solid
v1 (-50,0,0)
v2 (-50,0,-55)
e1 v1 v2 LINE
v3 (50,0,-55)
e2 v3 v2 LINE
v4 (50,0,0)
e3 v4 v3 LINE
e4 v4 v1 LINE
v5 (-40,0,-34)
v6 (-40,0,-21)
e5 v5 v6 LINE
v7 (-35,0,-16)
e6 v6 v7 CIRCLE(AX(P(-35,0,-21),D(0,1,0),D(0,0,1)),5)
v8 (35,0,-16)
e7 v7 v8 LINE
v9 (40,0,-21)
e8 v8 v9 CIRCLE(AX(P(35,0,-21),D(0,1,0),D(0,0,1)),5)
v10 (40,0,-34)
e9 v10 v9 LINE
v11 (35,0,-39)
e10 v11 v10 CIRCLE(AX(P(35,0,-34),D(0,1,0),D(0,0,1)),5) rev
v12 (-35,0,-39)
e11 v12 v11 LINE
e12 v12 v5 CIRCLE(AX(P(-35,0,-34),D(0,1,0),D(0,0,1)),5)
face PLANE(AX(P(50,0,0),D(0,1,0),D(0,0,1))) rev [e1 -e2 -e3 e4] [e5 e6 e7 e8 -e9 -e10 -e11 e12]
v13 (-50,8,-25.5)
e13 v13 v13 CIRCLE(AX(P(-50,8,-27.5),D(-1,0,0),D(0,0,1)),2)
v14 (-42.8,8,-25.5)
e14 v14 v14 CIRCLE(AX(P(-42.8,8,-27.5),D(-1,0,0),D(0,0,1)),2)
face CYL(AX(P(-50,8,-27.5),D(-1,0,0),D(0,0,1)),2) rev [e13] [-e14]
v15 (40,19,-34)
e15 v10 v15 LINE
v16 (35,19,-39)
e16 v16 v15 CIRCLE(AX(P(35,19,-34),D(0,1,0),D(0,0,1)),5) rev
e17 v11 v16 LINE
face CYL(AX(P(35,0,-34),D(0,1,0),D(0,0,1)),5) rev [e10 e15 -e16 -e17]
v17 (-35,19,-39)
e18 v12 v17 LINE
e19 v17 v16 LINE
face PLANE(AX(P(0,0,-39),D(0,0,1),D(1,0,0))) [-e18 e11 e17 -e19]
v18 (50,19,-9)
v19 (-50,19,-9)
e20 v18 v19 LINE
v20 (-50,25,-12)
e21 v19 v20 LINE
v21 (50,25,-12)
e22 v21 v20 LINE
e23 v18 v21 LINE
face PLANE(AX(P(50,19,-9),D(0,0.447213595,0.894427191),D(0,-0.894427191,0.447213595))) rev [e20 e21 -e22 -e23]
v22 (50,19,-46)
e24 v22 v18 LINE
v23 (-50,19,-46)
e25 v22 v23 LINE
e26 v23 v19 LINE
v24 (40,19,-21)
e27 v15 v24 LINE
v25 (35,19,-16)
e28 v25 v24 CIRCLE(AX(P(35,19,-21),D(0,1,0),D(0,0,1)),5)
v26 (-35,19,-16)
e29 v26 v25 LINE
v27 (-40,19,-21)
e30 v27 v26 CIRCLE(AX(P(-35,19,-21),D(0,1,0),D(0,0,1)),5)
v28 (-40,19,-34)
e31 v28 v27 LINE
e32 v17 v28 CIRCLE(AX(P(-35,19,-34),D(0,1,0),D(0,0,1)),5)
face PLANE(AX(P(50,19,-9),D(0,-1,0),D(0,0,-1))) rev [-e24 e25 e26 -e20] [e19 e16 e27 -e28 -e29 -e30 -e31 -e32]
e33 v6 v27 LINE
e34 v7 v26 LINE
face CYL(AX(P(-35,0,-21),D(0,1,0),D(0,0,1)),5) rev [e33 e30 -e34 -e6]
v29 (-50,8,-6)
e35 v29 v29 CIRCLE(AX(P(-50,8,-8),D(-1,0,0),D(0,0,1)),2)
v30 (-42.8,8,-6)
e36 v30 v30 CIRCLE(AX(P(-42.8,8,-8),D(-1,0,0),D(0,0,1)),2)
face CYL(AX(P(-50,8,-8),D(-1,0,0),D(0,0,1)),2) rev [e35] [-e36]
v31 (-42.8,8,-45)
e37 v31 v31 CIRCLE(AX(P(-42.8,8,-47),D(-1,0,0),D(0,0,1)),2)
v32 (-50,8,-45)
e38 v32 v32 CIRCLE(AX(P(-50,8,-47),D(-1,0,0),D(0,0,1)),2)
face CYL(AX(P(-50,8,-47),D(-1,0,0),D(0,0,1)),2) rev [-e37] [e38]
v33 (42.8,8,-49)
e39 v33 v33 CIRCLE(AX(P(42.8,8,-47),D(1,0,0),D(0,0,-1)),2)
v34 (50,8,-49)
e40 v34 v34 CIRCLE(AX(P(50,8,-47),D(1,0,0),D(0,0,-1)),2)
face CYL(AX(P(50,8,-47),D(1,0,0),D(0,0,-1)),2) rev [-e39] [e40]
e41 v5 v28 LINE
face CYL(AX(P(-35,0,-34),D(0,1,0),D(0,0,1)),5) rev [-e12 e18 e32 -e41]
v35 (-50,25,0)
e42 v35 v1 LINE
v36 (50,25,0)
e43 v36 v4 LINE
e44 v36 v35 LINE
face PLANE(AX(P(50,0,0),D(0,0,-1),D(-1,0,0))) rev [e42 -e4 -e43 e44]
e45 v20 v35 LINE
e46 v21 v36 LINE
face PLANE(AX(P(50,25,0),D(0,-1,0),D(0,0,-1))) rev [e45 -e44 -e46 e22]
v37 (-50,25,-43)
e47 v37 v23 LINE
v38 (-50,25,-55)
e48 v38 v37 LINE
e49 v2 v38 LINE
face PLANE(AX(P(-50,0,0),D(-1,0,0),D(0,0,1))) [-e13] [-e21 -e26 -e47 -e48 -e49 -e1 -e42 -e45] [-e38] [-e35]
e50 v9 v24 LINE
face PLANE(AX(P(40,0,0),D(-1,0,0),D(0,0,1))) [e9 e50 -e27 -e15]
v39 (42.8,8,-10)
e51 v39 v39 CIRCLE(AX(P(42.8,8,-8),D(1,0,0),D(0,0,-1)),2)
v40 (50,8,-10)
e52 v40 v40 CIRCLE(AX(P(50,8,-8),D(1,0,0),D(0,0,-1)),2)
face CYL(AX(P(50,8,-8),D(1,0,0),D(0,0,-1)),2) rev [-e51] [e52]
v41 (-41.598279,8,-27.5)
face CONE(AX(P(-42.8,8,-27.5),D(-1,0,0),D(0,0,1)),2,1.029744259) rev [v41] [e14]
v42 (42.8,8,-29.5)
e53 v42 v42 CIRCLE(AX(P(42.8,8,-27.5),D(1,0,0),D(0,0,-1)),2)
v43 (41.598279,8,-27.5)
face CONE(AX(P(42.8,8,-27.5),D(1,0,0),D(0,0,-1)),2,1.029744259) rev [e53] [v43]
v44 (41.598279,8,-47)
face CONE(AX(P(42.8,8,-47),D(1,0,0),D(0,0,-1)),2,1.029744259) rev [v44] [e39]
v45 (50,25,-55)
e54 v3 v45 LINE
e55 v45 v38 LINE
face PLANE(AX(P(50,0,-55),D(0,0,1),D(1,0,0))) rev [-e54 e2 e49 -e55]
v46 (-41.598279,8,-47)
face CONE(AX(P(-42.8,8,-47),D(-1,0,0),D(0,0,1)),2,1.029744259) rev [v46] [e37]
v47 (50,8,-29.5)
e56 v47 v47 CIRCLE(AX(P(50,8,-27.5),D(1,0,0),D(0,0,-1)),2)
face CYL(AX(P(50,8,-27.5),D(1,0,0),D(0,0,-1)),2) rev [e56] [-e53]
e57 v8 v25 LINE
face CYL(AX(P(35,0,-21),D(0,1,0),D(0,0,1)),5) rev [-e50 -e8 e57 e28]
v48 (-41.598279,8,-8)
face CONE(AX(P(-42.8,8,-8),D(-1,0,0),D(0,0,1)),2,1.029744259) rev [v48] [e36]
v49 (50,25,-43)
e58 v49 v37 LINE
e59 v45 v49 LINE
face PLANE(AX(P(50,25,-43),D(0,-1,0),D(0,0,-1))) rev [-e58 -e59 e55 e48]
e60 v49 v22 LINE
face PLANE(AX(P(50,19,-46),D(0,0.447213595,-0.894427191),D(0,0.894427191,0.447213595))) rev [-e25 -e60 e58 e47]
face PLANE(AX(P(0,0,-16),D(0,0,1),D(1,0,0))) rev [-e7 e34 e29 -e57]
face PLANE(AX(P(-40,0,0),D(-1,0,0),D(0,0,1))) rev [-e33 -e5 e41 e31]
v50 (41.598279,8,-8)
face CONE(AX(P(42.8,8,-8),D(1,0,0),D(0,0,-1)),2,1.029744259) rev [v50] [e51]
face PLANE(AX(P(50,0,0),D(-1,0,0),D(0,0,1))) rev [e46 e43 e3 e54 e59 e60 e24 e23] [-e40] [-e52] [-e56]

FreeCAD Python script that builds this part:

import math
import FreeCAD as App
import Part
import Sketcher

V = App.Vector
Q = App.Units.Quantity

doc = App.newDocument("Part")
params = doc.addObject("Spreadsheet::Sheet", "Params")
for row, (alias, value) in enumerate([
    ("sketch1_width", "25 mm"),
    ("sketch1_height", "37 mm"),
    ("sketch1_height2", "12 mm"),
    ("sketch1_height3", "55 mm"),
    ("pad1_length", "100 mm"),
    ("sketch2_height", "2 mm"),
    ("sketch2_width", "7.2 mm"),
    ("groove_angle", "360 deg"),
    ("linearpattern_pitch", "19.5 mm"),
    ("linearpattern2_pitch", "39 mm"),
    ("sketch3_height", "2 mm"),
    ("sketch3_width", "7.2 mm"),
    ("groove2_angle", "360 deg"),
    ("sketch4_height", "2 mm"),
    ("sketch4_width", "7.2 mm"),
    ("groove3_angle", "360 deg"),
    ("sketch5_radius", "5 mm"),
    ("sketch5_width", "70 mm"),
    ("sketch5_height", "13 mm"),
], start=1):
    params.set(f"A{row}", alias)
    params.set(f"B{row}", "=" + value)
    params.setAlias(f"B{row}", alias)

body = doc.addObject("PartDesign::Body", "Body")

# Sketch on YZ plane
sketch1 = body.newObject("Sketcher::SketchObject", "Sketch")
sketch1.AttachmentSupport = (doc.getObject("YZ_Plane"), [""])
sketch1.MapMode = "FlatFace"
sketch1.addGeometry([
    Part.LineSegment(V(19, -46, 0), V(19, -9, 0)),  # 0
    Part.LineSegment(V(19, -9, 0), V(25, -12, 0)),  # 1
    Part.LineSegment(V(25, -12, 0), V(25, 0, 0)),  # 2
    Part.LineSegment(V(25, 0, 0), V(0, 0, 0)),  # 3
    Part.LineSegment(V(0, 0, 0), V(0, -55, 0)),  # 4
    Part.LineSegment(V(0, -55, 0), V(25, -55, 0)),  # 5
    Part.LineSegment(V(25, -55, 0), V(25, -43, 0)),  # 6
    Part.LineSegment(V(25, -43, 0), V(19, -46, 0)),  # 7
], False)
sketch1.addConstraint([
    Sketcher.Constraint("Coincident", 0, 2, 1, 1),
    Sketcher.Constraint("Coincident", 1, 2, 2, 1),
    Sketcher.Constraint("Coincident", 2, 2, 3, 1),
    Sketcher.Constraint("Coincident", 3, 2, 4, 1),
    Sketcher.Constraint("Coincident", 4, 2, 5, 1),
    Sketcher.Constraint("Coincident", 5, 2, 6, 1),
    Sketcher.Constraint("Coincident", 6, 2, 7, 1),
    Sketcher.Constraint("Coincident", 7, 2, 0, 1),
    Sketcher.Constraint("Vertical", 0),
    Sketcher.Constraint("Vertical", 2),
    Sketcher.Constraint("Horizontal", 3),
    Sketcher.Constraint("Vertical", 4),
    Sketcher.Constraint("Horizontal", 5),
    Sketcher.Constraint("Vertical", 6),
    Sketcher.Constraint("Coincident", 3, 2, -1, 1),
    Sketcher.Constraint("Vertical", 2, 2, 5, 2),
    Sketcher.Constraint("Equal", 2, 6),
    Sketcher.Constraint("Equal", 1, 7),
    Sketcher.Constraint("DistanceX", 3, 2, 3, 1, 25.0),
    Sketcher.Constraint("DistanceY", 0, 1, 0, 2, 37.0),
    Sketcher.Constraint("DistanceY", 2, 1, 2, 2, 12.0),
    Sketcher.Constraint("DistanceY", 4, 2, 4, 1, 55.0),
    Sketcher.Constraint("DistanceX", -1, 1, 0, 2, 19.0),
])
sketch1.setExpression("Constraints[18]", "Params.sketch1_width")
sketch1.setExpression("Constraints[19]", "Params.sketch1_height")
sketch1.setExpression("Constraints[20]", "Params.sketch1_height2")
sketch1.setExpression("Constraints[21]", "Params.sketch1_height3")
pad1 = body.newObject("PartDesign::Pad", "Pad")
pad1.Profile = sketch1
pad1.setExpression("Length", "Params.pad1_length")
pad1.Midplane = True

# Sketch on XZ plane
sketch2 = body.newObject("Sketcher::SketchObject", "Sketch001")
sketch2.AttachmentSupport = (doc.getObject("XZ_Plane"), [""])
sketch2.MapMode = "FlatFace"
sketch2.AttachmentOffset = App.Placement(V(0, 0, -8), App.Rotation())
sketch2.addGeometry([
    Part.LineSegment(V(41.6, -8, 0), V(50, -8, 0)),
    Part.LineSegment(V(50, -8, 0), V(50, -10, 0)),
    Part.LineSegment(V(50, -10, 0), V(42.8, -10, 0)),
    Part.LineSegment(V(42.8, -10, 0), V(41.6, -8, 0)),
], False)
sketch2.addGeometry(Part.LineSegment(V(50, -8, 0), V(41.6, -8, 0)), True)  # axis
sketch2.addConstraint([
    Sketcher.Constraint("Coincident", 0, 2, 1, 1),
    Sketcher.Constraint("Coincident", 1, 2, 2, 1),
    Sketcher.Constraint("Coincident", 2, 2, 3, 1),
    Sketcher.Constraint("Coincident", 3, 2, 0, 1),
    Sketcher.Constraint("Horizontal", 0),
    Sketcher.Constraint("Vertical", 1),
    Sketcher.Constraint("Horizontal", 2),
    Sketcher.Constraint("Horizontal", 4),
    Sketcher.Constraint("Coincident", 4, 1, 0, 2),
    Sketcher.Constraint("Equal", 0, 4),
    Sketcher.Constraint("DistanceY", 1, 2, 1, 1, 2.0),
    Sketcher.Constraint("Angle", 3, Q("121 deg")),
    Sketcher.Constraint("DistanceX", 2, 2, 2, 1, 7.2),
    Sketcher.Constraint("DistanceX", -1, 1, 0, 2, 50.0),
    Sketcher.Constraint("DistanceY", 0, 2, -1, 1, 8.0),
])
sketch2.setExpression("Constraints[10]", "Params.sketch2_height")
sketch2.setExpression("Constraints[12]", "Params.sketch2_width")
groove = body.newObject("PartDesign::Groove", "Groove")
groove.Profile = sketch2
groove.ReferenceAxis = (sketch2, ["Axis0"])
groove.setExpression("Angle", "Params.groove_angle")
doc.recompute()

linearpattern = body.newObject("PartDesign::LinearPattern", "LinearPattern")
linearpattern.Originals = [groove]
linearpattern.Direction = (doc.getObject("Z_Axis"), [""])
linearpattern.Mode = "offset"
linearpattern.setExpression("Offset", "Params.linearpattern_pitch")
linearpattern.Occurrences = 2
linearpattern.Reversed = True
body.Tip = linearpattern
doc.recompute()

linearpattern2 = body.newObject("PartDesign::LinearPattern", "LinearPattern001")
linearpattern2.Originals = [groove]
linearpattern2.Direction = (doc.getObject("Z_Axis"), [""])
linearpattern2.Mode = "offset"
linearpattern2.setExpression("Offset", "Params.linearpattern2_pitch")
linearpattern2.Occurrences = 2
linearpattern2.Reversed = True
body.Tip = linearpattern2
doc.recompute()

mirrored = body.newObject("PartDesign::Mirrored", "Mirrored")
mirrored.Originals = [groove]
mirrored.MirrorPlane = (doc.getObject("YZ_Plane"), [""])
body.Tip = mirrored

# Sketch on XZ plane
sketch3 = body.newObject("Sketcher::SketchObject", "Sketch002")
sketch3.AttachmentSupport = (doc.getObject("XZ_Plane"), [""])
sketch3.MapMode = "FlatFace"
sketch3.AttachmentOffset = App.Placement(V(0, 0, -8), App.Rotation())
sketch3.addGeometry([
    Part.LineSegment(V(-50, -27.5, 0), V(-41.6, -27.5, 0)),
    Part.LineSegment(V(-41.6, -27.5, 0), V(-42.8, -29.5, 0)),
    Part.LineSegment(V(-42.8, -29.5, 0), V(-50, -29.5, 0)),
    Part.LineSegment(V(-50, -29.5, 0), V(-50, -27.5, 0)),
], False)
sketch3.addGeometry(Part.LineSegment(V(-41.6, -27.5, 0), V(-50, -27.5, 0)), True)  # axis
sketch3.addConstraint([
    Sketcher.Constraint("Coincident", 0, 2, 1, 1),
    Sketcher.Constraint("Coincident", 1, 2, 2, 1),
    Sketcher.Constraint("Coincident", 2, 2, 3, 1),
    Sketcher.Constraint("Coincident", 3, 2, 0, 1),
    Sketcher.Constraint("Horizontal", 0),
    Sketcher.Constraint("Horizontal", 2),
    Sketcher.Constraint("Vertical", 3),
    Sketcher.Constraint("Horizontal", 4),
    Sketcher.Constraint("Coincident", 4, 1, 0, 2),
    Sketcher.Constraint("Vertical", 2, 2, 4, 2),
    Sketcher.Constraint("DistanceY", 3, 1, 3, 2, 2.0),
    Sketcher.Constraint("Angle", 1, Q("-121 deg")),
    Sketcher.Constraint("DistanceX", 2, 2, 2, 1, 7.2),
    Sketcher.Constraint("DistanceX", 2, 2, -1, 1, 50.0),
    Sketcher.Constraint("DistanceY", 0, 2, -1, 1, 27.5),
])
sketch3.setExpression("Constraints[10]", "Params.sketch3_height")
sketch3.setExpression("Constraints[12]", "Params.sketch3_width")
groove2 = body.newObject("PartDesign::Groove", "Groove001")
groove2.Profile = sketch3
groove2.ReferenceAxis = (sketch3, ["Axis0"])
groove2.setExpression("Angle", "Params.groove2_angle")

# Sketch on XZ plane
sketch4 = body.newObject("Sketcher::SketchObject", "Sketch003")
sketch4.AttachmentSupport = (doc.getObject("XZ_Plane"), [""])
sketch4.MapMode = "FlatFace"
sketch4.AttachmentOffset = App.Placement(V(0, 0, -8), App.Rotation())
sketch4.addGeometry([
    Part.LineSegment(V(-50, -47, 0), V(-41.6, -47, 0)),
    Part.LineSegment(V(-41.6, -47, 0), V(-42.8, -49, 0)),
    Part.LineSegment(V(-42.8, -49, 0), V(-50, -49, 0)),
    Part.LineSegment(V(-50, -49, 0), V(-50, -47, 0)),
], False)
sketch4.addGeometry(Part.LineSegment(V(-41.6, -47, 0), V(-50, -47, 0)), True)  # axis
sketch4.addConstraint([
    Sketcher.Constraint("Coincident", 0, 2, 1, 1),
    Sketcher.Constraint("Coincident", 1, 2, 2, 1),
    Sketcher.Constraint("Coincident", 2, 2, 3, 1),
    Sketcher.Constraint("Coincident", 3, 2, 0, 1),
    Sketcher.Constraint("Horizontal", 0),
    Sketcher.Constraint("Horizontal", 2),
    Sketcher.Constraint("Vertical", 3),
    Sketcher.Constraint("Horizontal", 4),
    Sketcher.Constraint("Coincident", 4, 1, 0, 2),
    Sketcher.Constraint("Vertical", 2, 2, 4, 2),
    Sketcher.Constraint("DistanceY", 3, 1, 3, 2, 2.0),
    Sketcher.Constraint("Angle", 1, Q("-121 deg")),
    Sketcher.Constraint("DistanceX", 2, 2, 2, 1, 7.2),
    Sketcher.Constraint("DistanceY", 0, 2, -1, 1, 47.0),
    Sketcher.Constraint("DistanceX", 2, 2, -1, 1, 50.0),
])
sketch4.setExpression("Constraints[10]", "Params.sketch4_height")
sketch4.setExpression("Constraints[12]", "Params.sketch4_width")
groove3 = body.newObject("PartDesign::Groove", "Groove002")
groove3.Profile = sketch4
groove3.ReferenceAxis = (sketch4, ["Axis0"])
groove3.setExpression("Angle", "Params.groove3_angle")

# Sketch on XZ plane
sketch5 = body.newObject("Sketcher::SketchObject", "Sketch004")
sketch5.AttachmentSupport = (doc.getObject("XZ_Plane"), [""])
sketch5.MapMode = "FlatFace"
sketch5.AttachmentOffset = App.Placement(V(0, 0, -19), App.Rotation())
sketch5.addGeometry([
    Part.LineSegment(V(35, -39, 0), V(-35, -39, 0)),  # 0
    Part.ArcOfCircle(Part.Circle(V(-35, -34, 0), V(0, 0, 1), 5), math.radians(180), math.radians(270)),  # 1
    Part.LineSegment(V(-40, -34, 0), V(-40, -21, 0)),  # 2
    Part.ArcOfCircle(Part.Circle(V(-35, -21, 0), V(0, 0, 1), 5), math.radians(90), math.radians(180)),  # 3
    Part.LineSegment(V(-35, -16, 0), V(35, -16, 0)),  # 4
    Part.ArcOfCircle(Part.Circle(V(35, -21, 0), V(0, 0, 1), 5), math.radians(0), math.radians(90)),  # 5
    Part.LineSegment(V(40, -21, 0), V(40, -34, 0)),  # 6
    Part.ArcOfCircle(Part.Circle(V(35, -34, 0), V(0, 0, 1), 5), math.radians(-90), math.radians(0)),  # 7
], False)
sketch5.addConstraint([
    Sketcher.Constraint("Tangent", 0, 2, 1, 2),
    Sketcher.Constraint("Tangent", 1, 1, 2, 1),
    Sketcher.Constraint("Tangent", 2, 2, 3, 2),
    Sketcher.Constraint("Tangent", 3, 1, 4, 1),
    Sketcher.Constraint("Tangent", 4, 2, 5, 2),
    Sketcher.Constraint("Tangent", 5, 1, 6, 1),
    Sketcher.Constraint("Tangent", 6, 2, 7, 2),
    Sketcher.Constraint("Tangent", 7, 1, 0, 1),
    Sketcher.Constraint("Horizontal", 0),
    Sketcher.Constraint("Vertical", 2),
    Sketcher.Constraint("Horizontal", 4),
    Sketcher.Constraint("Vertical", 6),
    Sketcher.Constraint("Equal", 1, 3),
    Sketcher.Constraint("Equal", 3, 5),
    Sketcher.Constraint("Equal", 5, 7),
    Sketcher.Constraint("Radius", 1, 5.0),
    Sketcher.Constraint("DistanceX", 0, 2, 0, 1, 70.0),
    Sketcher.Constraint("DistanceY", 2, 1, 2, 2, 13.0),
    Sketcher.Constraint("DistanceX", 1, 3, -1, 1, 35.0),
    Sketcher.Constraint("DistanceY", 1, 3, -1, 1, 34.0),
])
sketch5.setExpression("Constraints[15]", "Params.sketch5_radius")
sketch5.setExpression("Constraints[16]", "Params.sketch5_width")
sketch5.setExpression("Constraints[17]", "Params.sketch5_height")
pocket1 = body.newObject("PartDesign::Pocket", "Pocket")
pocket1.Profile = sketch5
pocket1.Type = "ThroughAll"
pocket1.Reversed = True

doc.recompute()
